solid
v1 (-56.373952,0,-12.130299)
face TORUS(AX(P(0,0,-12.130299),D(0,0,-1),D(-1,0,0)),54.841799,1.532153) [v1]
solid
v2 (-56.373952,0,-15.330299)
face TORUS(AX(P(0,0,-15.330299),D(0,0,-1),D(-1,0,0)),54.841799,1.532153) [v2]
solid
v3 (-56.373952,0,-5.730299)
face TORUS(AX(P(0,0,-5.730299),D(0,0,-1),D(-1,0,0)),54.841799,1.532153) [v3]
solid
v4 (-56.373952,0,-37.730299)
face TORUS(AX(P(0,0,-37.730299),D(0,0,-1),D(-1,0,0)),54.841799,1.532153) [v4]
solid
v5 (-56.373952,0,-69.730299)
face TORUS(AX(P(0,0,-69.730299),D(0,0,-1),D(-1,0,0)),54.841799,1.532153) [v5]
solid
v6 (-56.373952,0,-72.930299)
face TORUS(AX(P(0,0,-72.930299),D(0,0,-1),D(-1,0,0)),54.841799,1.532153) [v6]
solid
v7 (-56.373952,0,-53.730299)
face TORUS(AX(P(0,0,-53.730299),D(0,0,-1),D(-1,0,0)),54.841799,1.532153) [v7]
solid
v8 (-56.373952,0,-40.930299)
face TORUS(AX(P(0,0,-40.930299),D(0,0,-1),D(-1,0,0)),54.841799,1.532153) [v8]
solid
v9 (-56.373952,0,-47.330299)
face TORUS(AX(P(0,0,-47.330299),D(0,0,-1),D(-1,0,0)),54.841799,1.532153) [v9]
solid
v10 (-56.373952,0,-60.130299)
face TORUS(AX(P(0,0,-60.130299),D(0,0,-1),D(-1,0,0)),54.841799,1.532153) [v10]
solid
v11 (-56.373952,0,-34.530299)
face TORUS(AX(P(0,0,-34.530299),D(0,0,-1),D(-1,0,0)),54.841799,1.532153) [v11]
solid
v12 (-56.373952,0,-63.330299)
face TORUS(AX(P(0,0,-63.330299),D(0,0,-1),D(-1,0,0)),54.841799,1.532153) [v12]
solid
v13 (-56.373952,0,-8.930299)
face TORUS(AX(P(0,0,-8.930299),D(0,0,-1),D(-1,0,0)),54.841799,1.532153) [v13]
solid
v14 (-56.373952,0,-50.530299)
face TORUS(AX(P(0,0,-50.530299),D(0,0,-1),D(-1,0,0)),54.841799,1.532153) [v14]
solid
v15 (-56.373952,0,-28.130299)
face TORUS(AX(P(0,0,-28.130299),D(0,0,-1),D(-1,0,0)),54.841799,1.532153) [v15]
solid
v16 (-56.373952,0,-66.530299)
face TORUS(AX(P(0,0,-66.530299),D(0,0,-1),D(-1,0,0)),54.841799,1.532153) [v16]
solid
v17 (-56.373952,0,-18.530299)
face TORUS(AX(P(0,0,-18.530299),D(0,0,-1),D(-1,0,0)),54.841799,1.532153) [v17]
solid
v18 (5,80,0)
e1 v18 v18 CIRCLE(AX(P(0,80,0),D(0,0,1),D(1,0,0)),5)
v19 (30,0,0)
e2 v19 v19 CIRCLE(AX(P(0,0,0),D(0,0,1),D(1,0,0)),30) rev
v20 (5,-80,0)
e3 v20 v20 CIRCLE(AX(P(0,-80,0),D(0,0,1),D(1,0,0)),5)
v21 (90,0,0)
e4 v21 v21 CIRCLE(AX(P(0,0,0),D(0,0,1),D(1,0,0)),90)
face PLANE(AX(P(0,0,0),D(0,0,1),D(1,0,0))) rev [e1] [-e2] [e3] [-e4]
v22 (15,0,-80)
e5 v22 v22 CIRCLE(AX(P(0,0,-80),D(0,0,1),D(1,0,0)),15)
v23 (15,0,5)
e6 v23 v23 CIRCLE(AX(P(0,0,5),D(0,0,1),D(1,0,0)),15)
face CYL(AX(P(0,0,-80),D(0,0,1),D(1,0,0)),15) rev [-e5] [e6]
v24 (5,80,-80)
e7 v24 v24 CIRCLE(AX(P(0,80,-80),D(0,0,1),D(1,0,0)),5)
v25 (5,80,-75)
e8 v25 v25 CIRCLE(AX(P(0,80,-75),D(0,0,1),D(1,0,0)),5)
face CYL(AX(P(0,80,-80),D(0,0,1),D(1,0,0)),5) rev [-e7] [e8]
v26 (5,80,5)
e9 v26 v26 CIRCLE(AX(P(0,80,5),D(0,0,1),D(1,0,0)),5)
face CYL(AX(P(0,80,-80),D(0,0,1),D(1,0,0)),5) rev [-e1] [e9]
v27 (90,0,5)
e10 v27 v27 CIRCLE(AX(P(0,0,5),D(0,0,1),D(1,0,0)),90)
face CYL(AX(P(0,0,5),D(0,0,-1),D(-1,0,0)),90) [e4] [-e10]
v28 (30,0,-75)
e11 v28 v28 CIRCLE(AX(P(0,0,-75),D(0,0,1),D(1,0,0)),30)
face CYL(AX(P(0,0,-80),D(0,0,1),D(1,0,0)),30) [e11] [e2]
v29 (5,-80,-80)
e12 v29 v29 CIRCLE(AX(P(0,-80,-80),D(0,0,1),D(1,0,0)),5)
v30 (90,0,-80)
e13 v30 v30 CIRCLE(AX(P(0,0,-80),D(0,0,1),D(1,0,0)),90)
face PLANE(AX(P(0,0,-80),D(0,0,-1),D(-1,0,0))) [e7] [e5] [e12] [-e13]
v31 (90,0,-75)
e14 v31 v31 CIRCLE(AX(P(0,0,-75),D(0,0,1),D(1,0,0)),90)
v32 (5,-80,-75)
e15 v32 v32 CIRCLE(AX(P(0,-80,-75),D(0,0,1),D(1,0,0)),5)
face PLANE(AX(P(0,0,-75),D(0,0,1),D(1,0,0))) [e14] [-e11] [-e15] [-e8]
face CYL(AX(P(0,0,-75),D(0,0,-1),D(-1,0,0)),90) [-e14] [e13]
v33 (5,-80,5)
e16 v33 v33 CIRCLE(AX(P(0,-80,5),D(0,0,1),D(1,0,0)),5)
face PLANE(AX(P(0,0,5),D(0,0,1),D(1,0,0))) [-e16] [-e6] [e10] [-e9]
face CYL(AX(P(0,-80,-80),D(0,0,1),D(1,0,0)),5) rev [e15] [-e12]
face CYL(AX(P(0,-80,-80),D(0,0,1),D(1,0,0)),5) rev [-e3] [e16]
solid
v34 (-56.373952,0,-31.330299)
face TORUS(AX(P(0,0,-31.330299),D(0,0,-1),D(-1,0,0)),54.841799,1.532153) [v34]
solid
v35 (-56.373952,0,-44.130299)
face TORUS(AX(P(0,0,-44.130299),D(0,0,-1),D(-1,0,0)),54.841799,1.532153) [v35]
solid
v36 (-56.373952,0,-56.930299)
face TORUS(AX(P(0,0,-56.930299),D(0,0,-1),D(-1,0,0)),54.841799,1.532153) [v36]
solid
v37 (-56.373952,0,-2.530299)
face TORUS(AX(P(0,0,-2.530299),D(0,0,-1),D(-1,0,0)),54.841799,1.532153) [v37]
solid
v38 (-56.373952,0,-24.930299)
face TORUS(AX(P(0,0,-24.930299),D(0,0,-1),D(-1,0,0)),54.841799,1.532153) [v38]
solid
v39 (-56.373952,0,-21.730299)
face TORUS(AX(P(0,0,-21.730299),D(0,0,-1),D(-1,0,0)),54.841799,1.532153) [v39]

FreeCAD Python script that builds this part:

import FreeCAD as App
import Part
import Sketcher

V = App.Vector

doc = App.newDocument("Part")
body = doc.addObject("PartDesign::Body", "Body")

# Sketch on XY plane
sketch1 = body.newObject("Sketcher::SketchObject", "Sketch")
sketch1.AttachmentSupport = (doc.getObject("XY_Plane"), [""])
sketch1.MapMode = "FlatFace"
sketch1.addGeometry(Part.Circle(V(0, 0, 0), V(0, 0, 1), 90), False)
sketch1.addConstraint(Sketcher.Constraint("Coincident", 0, 3, -1, 1))
sketch1.addConstraint(Sketcher.Constraint("Diameter", 0, 180.0))
pad1 = body.newObject("PartDesign::Pad", "Pad")
pad1.Profile = sketch1
pad1.Length = 5

# Sketch on XY plane
sketch2 = body.newObject("Sketcher::SketchObject", "Sketch001")
sketch2.AttachmentSupport = (doc.getObject("XY_Plane"), [""])
sketch2.MapMode = "FlatFace"
sketch2.addGeometry(Part.Circle(V(0, 0, 0), V(0, 0, 1), 30), False)
sketch2.addConstraint(Sketcher.Constraint("Coincident", 0, 3, -1, 1))
sketch2.addConstraint(Sketcher.Constraint("Diameter", 0, 60.0))
pad2 = body.newObject("PartDesign::Pad", "Pad001")
pad2.Profile = sketch2
pad2.Length = 80
pad2.Reversed = True
doc.recompute()

linearpattern = body.newObject("PartDesign::LinearPattern", "LinearPattern")
linearpattern.Originals = [pad1]
linearpattern.Direction = (doc.getObject("Z_Axis"), [""])
linearpattern.Mode = "offset"
linearpattern.Offset = 80
linearpattern.Occurrences = 2
linearpattern.Reversed = True
body.Tip = linearpattern

# Sketch on XY plane
sketch3 = body.newObject("Sketcher::SketchObject", "Sketch002")
sketch3.AttachmentSupport = (doc.getObject("XY_Plane"), [""])
sketch3.MapMode = "FlatFace"
sketch3.AttachmentOffset = App.Placement(V(0, 0, 5), App.Rotation())
sketch3.addGeometry(Part.Circle(V(0, 0, 0), V(0, 0, 1), 15), False)
sketch3.addGeometry(Part.Circle(V(0, 80, 0), V(0, 0, 1), 5), False)
sketch3.addGeometry(Part.Circle(V(0, -80, 0), V(0, 0, 1), 5), False)
sketch3.addConstraint(Sketcher.Constraint("Coincident", 0, 3, -1, 1))
sketch3.addConstraint(Sketcher.Constraint("Equal", 1, 2))
sketch3.addConstraint(Sketcher.Constraint("Symmetric", 1, 3, 2, 3, -1, 1))
sketch3.addConstraint(Sketcher.Constraint("PointOnObject", 1, 3, -2))
sketch3.addConstraint(Sketcher.Constraint("Diameter", 0, 30.0))
sketch3.addConstraint(Sketcher.Constraint("Diameter", 1, 10.0))
sketch3.addConstraint(Sketcher.Constraint("DistanceY", -1, 1, 1, 3, 80.0))
pocket1 = body.newObject("PartDesign::Pocket", "Pocket")
pocket1.Profile = sketch3
pocket1.Type = "ThroughAll"
body2 = doc.addObject("PartDesign::Body", "Body001")
body2.AllowCompound = True

# Sketch on YZ plane
sketch4 = body2.newObject("Sketcher::SketchObject", "Sketch003")
sketch4.AttachmentSupport = (doc.getObject("YZ_Plane001"), [""])
sketch4.MapMode = "FlatFace"
sketch4.addGeometry(Part.Circle(V(54.8, -2.5, 0), V(0, 0, 1), 1.5), False)
sketch4.addGeometry(Part.Circle(V(54.8, -5.7, 0), V(0, 0, 1), 1.5), False)
sketch4.addGeometry(Part.Circle(V(54.8, -8.9, 0), V(0, 0, 1), 1.5), False)
sketch4.addGeometry(Part.Circle(V(54.8, -12.1, 0), V(0, 0, 1), 1.5), False)
sketch4.addGeometry(Part.Circle(V(54.8, -15.3, 0), V(0, 0, 1), 1.5), False)
sketch4.addGeometry(Part.Circle(V(54.8, -18.5, 0), V(0, 0, 1), 1.5), False)
sketch4.addGeometry(Part.Circle(V(54.8, -21.7, 0), V(0, 0, 1), 1.5), False)
sketch4.addGeometry(Part.Circle(V(54.8, -24.9, 0), V(0, 0, 1), 1.5), False)
sketch4.addGeometry(Part.Circle(V(54.8, -28.1, 0), V(0, 0, 1), 1.5), False)
sketch4.addGeometry(Part.Circle(V(54.8, -31.3, 0), V(0, 0, 1), 1.5), False)
sketch4.addGeometry(Part.Circle(V(54.8, -34.5, 0), V(0, 0, 1), 1.5), False)
sketch4.addGeometry(Part.Circle(V(54.8, -37.7, 0), V(0, 0, 1), 1.5), False)
sketch4.addGeometry(Part.Circle(V(54.8, -40.9, 0), V(0, 0, 1), 1.5), False)
sketch4.addGeometry(Part.Circle(V(54.8, -44.1, 0), V(0, 0, 1), 1.5), False)
sketch4.addGeometry(Part.Circle(V(54.8, -47.3, 0), V(0, 0, 1), 1.5), False)
sketch4.addGeometry(Part.Circle(V(54.8, -50.5, 0), V(0, 0, 1), 1.5), False)
sketch4.addGeometry(Part.Circle(V(54.8, -53.7, 0), V(0, 0, 1), 1.5), False)
sketch4.addGeometry(Part.Circle(V(54.8, -56.9, 0), V(0, 0, 1), 1.5), False)
sketch4.addGeometry(Part.Circle(V(54.8, -60.1, 0), V(0, 0, 1), 1.5), False)
sketch4.addGeometry(Part.Circle(V(54.8, -63.3, 0), V(0, 0, 1), 1.5), False)
sketch4.addGeometry(Part.Circle(V(54.8, -66.5, 0), V(0, 0, 1), 1.5), False)
sketch4.addGeometry(Part.Circle(V(54.8, -69.7, 0), V(0, 0, 1), 1.5), False)
sketch4.addGeometry(Part.Circle(V(54.8, -72.9, 0), V(0, 0, 1), 1.5), False)
sketch4.addConstraint(Sketcher.Constraint("Equal", 0, 1))
sketch4.addConstraint(Sketcher.Constraint("Equal", 1, 2))
sketch4.addConstraint(Sketcher.Constraint("Equal", 2, 3))
sketch4.addConstraint(Sketcher.Constraint("Equal", 3, 4))
sketch4.addConstraint(Sketcher.Constraint("Equal", 4, 5))
sketch4.addConstraint(Sketcher.Constraint("Equal", 5, 6))
sketch4.addConstraint(Sketcher.Constraint("Equal", 6, 7))
sketch4.addConstraint(Sketcher.Constraint("Equal", 7, 8))
sketch4.addConstraint(Sketcher.Constraint("Equal", 8, 9))
sketch4.addConstraint(Sketcher.Constraint("Equal", 9, 10))
sketch4.addConstraint(Sketcher.Constraint("Equal", 10, 11))
sketch4.addConstraint(Sketcher.Constraint("Equal", 11, 12))
sketch4.addConstraint(Sketcher.Constraint("Equal", 12, 13))
sketch4.addConstraint(Sketcher.Constraint("Equal", 13, 14))
sketch4.addConstraint(Sketcher.Constraint("Equal", 14, 15))
sketch4.addConstraint(Sketcher.Constraint("Equal", 15, 16))
sketch4.addConstraint(Sketcher.Constraint("Equal", 16, 17))
sketch4.addConstraint(Sketcher.Constraint("Equal", 17, 18))
sketch4.addConstraint(Sketcher.Constraint("Equal", 18, 19))
sketch4.addConstraint(Sketcher.Constraint("Equal", 19, 20))
sketch4.addConstraint(Sketcher.Constraint("Equal", 20, 21))
sketch4.addConstraint(Sketcher.Constraint("Equal", 21, 22))
sketch4.addConstraint(Sketcher.Constraint("Vertical", 0, 3, 1, 3))
sketch4.addConstraint(Sketcher.Constraint("Vertical", 1, 3, 2, 3))
sketch4.addConstraint(Sketcher.Constraint("Vertical", 2, 3, 3, 3))
sketch4.addConstraint(Sketcher.Constraint("Vertical", 3, 3, 4, 3))
sketch4.addConstraint(Sketcher.Constraint("Vertical", 4, 3, 5, 3))
sketch4.addConstraint(Sketcher.Constraint("Vertical", 5, 3, 6, 3))
sketch4.addConstraint(Sketcher.Constraint("Vertical", 6, 3, 7, 3))
sketch4.addConstraint(Sketcher.Constraint("Vertical", 7, 3, 8, 3))
sketch4.addConstraint(Sketcher.Constraint("Vertical", 8, 3, 9, 3))
sketch4.addConstraint(Sketcher.Constraint("Vertical", 9, 3, 10, 3))
sketch4.addConstraint(Sketcher.Constraint("Vertical", 10, 3, 11, 3))
sketch4.addConstraint(Sketcher.Constraint("Vertical", 11, 3, 12, 3))
sketch4.addConstraint(Sketcher.Constraint("Vertical", 12, 3, 13, 3))
sketch4.addConstraint(Sketcher.Constraint("Vertical", 13, 3, 14, 3))
sketch4.addConstraint(Sketcher.Constraint("Vertical", 14, 3, 15, 3))
sketch4.addConstraint(Sketcher.Constraint("Vertical", 15, 3, 16, 3))
sketch4.addConstraint(Sketcher.Constraint("Vertical", 16, 3, 17, 3))
sketch4.addConstraint(Sketcher.Constraint("Vertical", 17, 3, 18, 3))
sketch4.addConstraint(Sketcher.Constraint("Vertical", 18, 3, 19, 3))
sketch4.addConstraint(Sketcher.Constraint("Vertical", 19, 3, 20, 3))
sketch4.addConstraint(Sketcher.Constraint("Vertical", 20, 3, 21, 3))
sketch4.addConstraint(Sketcher.Constraint("Vertical", 21, 3, 22, 3))
sketch4.addConstraint(Sketcher.Constraint("DistanceY", 5, 3, 0, 3, 16.0))
sketch4.addConstraint(Sketcher.Constraint("DistanceY", 6, 3, 1, 3, 16.0))
sketch4.addConstraint(Sketcher.Constraint("DistanceY", 7, 3, 2, 3, 16.0))
sketch4.addConstraint(Sketcher.Constraint("DistanceY", 8, 3, 3, 3, 16.0))
sketch4.addConstraint(Sketcher.Constraint("DistanceY", 9, 3, 4, 3, 16.0))
sketch4.addConstraint(Sketcher.Constraint("DistanceY", 10, 3, 5, 3, 16.0))
sketch4.addConstraint(Sketcher.Constraint("DistanceY", 11, 3, 6, 3, 16.0))
sketch4.addConstraint(Sketcher.Constraint("DistanceY", 12, 3, 7, 3, 16.0))
sketch4.addConstraint(Sketcher.Constraint("DistanceY", 13, 3, 8, 3, 16.0))
sketch4.addConstraint(Sketcher.Constraint("DistanceY", 14, 3, 9, 3, 16.0))
sketch4.addConstraint(Sketcher.Constraint("DistanceY", 15, 3, 10, 3, 16.0))
sketch4.addConstraint(Sketcher.Constraint("DistanceY", 16, 3, 11, 3, 16.0))
sketch4.addConstraint(Sketcher.Constraint("DistanceY", 17, 3, 12, 3, 16.0))
sketch4.addConstraint(Sketcher.Constraint("DistanceY", 18, 3, 13, 3, 16.0))
sketch4.addConstraint(Sketcher.Constraint("DistanceY", 19, 3, 14, 3, 16.0))
sketch4.addConstraint(Sketcher.Constraint("DistanceY", 20, 3, 15, 3, 16.0))
sketch4.addConstraint(Sketcher.Constraint("DistanceY", 21, 3, 16, 3, 16.0))
sketch4.addConstraint(Sketcher.Constraint("DistanceY", 22, 3, 17, 3, 16.0))
sketch4.addConstraint(Sketcher.Constraint("DistanceY", 1, 3, 0, 3, 3.2))
sketch4.addConstraint(Sketcher.Constraint("DistanceY", 2, 3, 1, 3, 3.2))
sketch4.addConstraint(Sketcher.Constraint("DistanceY", 3, 3, 2, 3, 3.2))
sketch4.addConstraint(Sketcher.Constraint("DistanceY", 4, 3, 3, 3, 3.2))
sketch4.addConstraint(Sketcher.Constraint("Diameter", 0, 3.064306))
sketch4.addConstraint(Sketcher.Constraint("DistanceX", -1, 1, 0, 3, 54.841799))
sketch4.addConstraint(Sketcher.Constraint("DistanceY", 0, 3, -1, 1, 2.530299))
revolution = body2.newObject("PartDesign::Revolution", "Revolution")
revolution.Profile = sketch4
revolution.ReferenceAxis = (sketch4, ["V_Axis"])
revolution.Angle = 360

doc.recompute()
